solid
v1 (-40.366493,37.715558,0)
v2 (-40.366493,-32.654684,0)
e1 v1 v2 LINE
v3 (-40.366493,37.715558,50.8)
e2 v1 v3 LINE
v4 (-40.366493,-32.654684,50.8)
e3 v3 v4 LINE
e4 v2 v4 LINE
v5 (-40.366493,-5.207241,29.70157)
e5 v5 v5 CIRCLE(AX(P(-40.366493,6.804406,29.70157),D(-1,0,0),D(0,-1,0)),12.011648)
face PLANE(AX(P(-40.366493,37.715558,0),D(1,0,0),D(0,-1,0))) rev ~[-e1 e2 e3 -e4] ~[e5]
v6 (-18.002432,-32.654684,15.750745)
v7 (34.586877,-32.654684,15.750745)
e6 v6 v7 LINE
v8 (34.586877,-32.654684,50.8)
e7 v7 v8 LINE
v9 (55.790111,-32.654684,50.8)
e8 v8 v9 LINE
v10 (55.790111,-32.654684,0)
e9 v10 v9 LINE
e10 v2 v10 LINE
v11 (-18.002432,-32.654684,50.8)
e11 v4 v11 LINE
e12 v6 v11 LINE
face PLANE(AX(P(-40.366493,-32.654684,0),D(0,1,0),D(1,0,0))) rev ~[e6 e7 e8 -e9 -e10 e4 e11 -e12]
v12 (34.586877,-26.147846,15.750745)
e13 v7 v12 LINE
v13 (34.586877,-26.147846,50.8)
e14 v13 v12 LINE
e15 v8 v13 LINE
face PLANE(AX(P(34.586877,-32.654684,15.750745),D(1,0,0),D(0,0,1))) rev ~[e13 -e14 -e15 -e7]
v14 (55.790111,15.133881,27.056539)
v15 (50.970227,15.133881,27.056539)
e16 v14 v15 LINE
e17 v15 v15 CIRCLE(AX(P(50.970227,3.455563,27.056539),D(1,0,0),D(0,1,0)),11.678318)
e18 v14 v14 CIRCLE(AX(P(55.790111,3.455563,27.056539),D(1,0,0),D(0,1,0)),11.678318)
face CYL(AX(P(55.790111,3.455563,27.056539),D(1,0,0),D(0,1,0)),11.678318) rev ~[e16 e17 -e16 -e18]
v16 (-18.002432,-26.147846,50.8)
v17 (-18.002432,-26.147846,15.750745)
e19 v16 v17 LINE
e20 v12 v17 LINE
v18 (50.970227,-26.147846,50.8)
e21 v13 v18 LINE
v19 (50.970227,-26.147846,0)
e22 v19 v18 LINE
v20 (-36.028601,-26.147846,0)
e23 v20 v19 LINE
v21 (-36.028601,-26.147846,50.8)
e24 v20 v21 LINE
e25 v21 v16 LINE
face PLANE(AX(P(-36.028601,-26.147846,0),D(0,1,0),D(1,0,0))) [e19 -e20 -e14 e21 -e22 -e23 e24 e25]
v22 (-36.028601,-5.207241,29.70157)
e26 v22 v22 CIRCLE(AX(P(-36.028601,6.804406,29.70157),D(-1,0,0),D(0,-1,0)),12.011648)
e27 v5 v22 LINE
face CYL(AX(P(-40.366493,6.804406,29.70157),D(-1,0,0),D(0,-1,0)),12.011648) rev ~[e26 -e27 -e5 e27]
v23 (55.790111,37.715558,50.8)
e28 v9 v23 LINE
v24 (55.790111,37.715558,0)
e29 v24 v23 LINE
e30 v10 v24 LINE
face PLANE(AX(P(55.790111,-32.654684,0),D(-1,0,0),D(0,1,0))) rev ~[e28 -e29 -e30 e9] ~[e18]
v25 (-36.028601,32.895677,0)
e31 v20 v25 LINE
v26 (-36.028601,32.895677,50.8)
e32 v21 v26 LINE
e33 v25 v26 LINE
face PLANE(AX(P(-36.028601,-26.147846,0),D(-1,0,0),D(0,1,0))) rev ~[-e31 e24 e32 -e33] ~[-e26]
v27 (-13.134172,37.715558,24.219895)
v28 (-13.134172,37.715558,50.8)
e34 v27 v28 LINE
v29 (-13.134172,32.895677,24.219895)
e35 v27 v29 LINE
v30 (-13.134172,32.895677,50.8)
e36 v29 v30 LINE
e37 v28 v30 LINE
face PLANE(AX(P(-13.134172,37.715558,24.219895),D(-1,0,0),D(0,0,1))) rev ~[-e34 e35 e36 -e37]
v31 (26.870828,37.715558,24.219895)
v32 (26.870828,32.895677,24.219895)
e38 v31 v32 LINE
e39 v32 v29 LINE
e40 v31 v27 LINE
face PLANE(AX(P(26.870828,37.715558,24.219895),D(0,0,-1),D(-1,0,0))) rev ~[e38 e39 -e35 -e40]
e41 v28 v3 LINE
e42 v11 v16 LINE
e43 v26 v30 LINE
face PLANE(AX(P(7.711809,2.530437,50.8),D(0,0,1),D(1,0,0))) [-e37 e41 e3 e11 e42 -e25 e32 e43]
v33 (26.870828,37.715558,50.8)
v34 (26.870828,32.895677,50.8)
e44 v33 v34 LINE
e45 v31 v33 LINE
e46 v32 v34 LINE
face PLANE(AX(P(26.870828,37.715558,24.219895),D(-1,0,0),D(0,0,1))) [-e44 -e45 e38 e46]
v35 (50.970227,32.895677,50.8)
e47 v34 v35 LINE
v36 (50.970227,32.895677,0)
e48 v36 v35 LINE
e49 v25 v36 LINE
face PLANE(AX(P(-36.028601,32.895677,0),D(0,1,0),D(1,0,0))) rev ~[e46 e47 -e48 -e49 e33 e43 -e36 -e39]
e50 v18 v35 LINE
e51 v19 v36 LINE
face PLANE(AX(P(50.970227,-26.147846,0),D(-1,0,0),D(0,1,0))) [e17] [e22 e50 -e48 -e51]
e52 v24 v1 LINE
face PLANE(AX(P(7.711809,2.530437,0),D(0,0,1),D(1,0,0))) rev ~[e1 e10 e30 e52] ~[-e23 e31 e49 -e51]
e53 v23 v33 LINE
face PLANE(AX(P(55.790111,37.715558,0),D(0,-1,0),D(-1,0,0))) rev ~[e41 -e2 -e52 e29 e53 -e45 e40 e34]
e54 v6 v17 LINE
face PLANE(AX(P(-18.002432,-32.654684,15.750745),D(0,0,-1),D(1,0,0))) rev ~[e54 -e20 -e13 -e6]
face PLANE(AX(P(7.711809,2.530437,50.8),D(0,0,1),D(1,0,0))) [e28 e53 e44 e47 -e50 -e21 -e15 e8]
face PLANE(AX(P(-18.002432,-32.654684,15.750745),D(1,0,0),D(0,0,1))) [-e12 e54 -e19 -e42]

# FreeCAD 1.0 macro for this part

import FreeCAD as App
import Part
import Sketcher
Q = App.Units.Quantity


def add_polygon(sketch, points):
    """Adds a closed chain of lines whose ends are joined by coincident constraints."""
    first, n = sketch.GeometryCount, len(points)
    for a, b in zip(points, points[1:] + points[:1]):
        sketch.addGeometry(Part.LineSegment(App.Vector(*a, 0), App.Vector(*b, 0)), False)
    for i in range(n):
        sketch.addConstraint(Sketcher.Constraint("Coincident", first + i, 2, first + (i + 1) % n, 1))

doc = App.newDocument("Part")
params = doc.addObject("Spreadsheet::Sheet", "Params")
for row, (alias, value) in enumerate([
    ("pad1_length", "2 in"),
    ("pocket1_length", "1 in"),
    ("sketch3_width", "1.575 in"),
    ("pocket2_length", "1 in"),
    ("pocket3_length", "1 in"),
    ("pocket4_length", "1 in"),
], start=1):
    params.set(f"A{row}", alias)
    params.set(f"B{row}", "=" + value)
    params.setAlias(f"B{row}", alias)

body = doc.addObject("PartDesign::Body", "Body")

sketch1 = body.newObject("Sketcher::SketchObject", "Sketch")
sketch1.AttachmentSupport = (doc.getObject("XY_Plane"), [""])
sketch1.MapMode = "FlatFace"
add_polygon(sketch1, [(56, 38), (-40, 38), (-40, -33), (56, -33)])
add_polygon(sketch1, [(51, -26), (-36, -26), (-36, 33), (51, 33)])
sketch1.addConstraint(Sketcher.Constraint("Horizontal", 0))
sketch1.addConstraint(Sketcher.Constraint("Vertical", 1))
sketch1.addConstraint(Sketcher.Constraint("Horizontal", 2))
sketch1.addConstraint(Sketcher.Constraint("Vertical", 3))
sketch1.addConstraint(Sketcher.Constraint("Horizontal", 4))
sketch1.addConstraint(Sketcher.Constraint("Vertical", 5))
sketch1.addConstraint(Sketcher.Constraint("Horizontal", 6))
sketch1.addConstraint(Sketcher.Constraint("Vertical", 7))
sketch1.addConstraint(Sketcher.Constraint("DistanceX", 4, 2, -1, 1, 36.028601))
sketch1.addConstraint(Sketcher.Constraint("DistanceX", 0, 2, 0, 1, 96.156605))
sketch1.addConstraint(Sketcher.Constraint("DistanceX", 4, 2, 4, 1, 86.998828))
sketch1.addConstraint(Sketcher.Constraint("DistanceY", 1, 2, 1, 1, 70.370242))
sketch1.addConstraint(Sketcher.Constraint("DistanceY", 5, 1, 5, 2, 59.043523))
sketch1.addConstraint(Sketcher.Constraint("DistanceX", -1, 1, 2, 2, 55.790111))
sketch1.addConstraint(Sketcher.Constraint("DistanceY", 5, 2, 0, 2, 4.819881))
sketch1.addConstraint(Sketcher.Constraint("DistanceY", -1, 1, 0, 2, 37.715558))
pad1 = body.newObject("PartDesign::Pad", "Pad")
pad1.Profile = sketch1
pad1.setExpression("Length", "Params.pad1_length")

sketch2 = body.newObject("Sketcher::SketchObject", "Sketch001")
sketch2.AttachmentSupport = (doc.getObject("XZ_Plane"), [""])
sketch2.MapMode = "FlatFace"
sketch2.AttachmentOffset = App.Placement(App.Vector(0, 0, 32.654684), App.Rotation())
add_polygon(sketch2, [(-18, 51), (-18, 16), (35, 16), (35, 51)])
sketch2.addConstraint(Sketcher.Constraint("Vertical", 0))
sketch2.addConstraint(Sketcher.Constraint("Horizontal", 1))
sketch2.addConstraint(Sketcher.Constraint("Vertical", 2))
sketch2.addConstraint(Sketcher.Constraint("Horizontal", 3))
sketch2.addConstraint(Sketcher.Constraint("DistanceY", -1, 1, 2, 2, Q("2 in")))
sketch2.addConstraint(Sketcher.Constraint("DistanceX", 1, 1, 1, 2, 52.589308))
sketch2.addConstraint(Sketcher.Constraint("DistanceY", 0, 2, 0, 1, 35.049255))
sketch2.addConstraint(Sketcher.Constraint("DistanceX", 0, 2, -1, 1, 18.002432))
pocket1 = body.newObject("PartDesign::Pocket", "Pocket")
pocket1.Profile = sketch2
pocket1.setExpression("Length", "Params.pocket1_length")

sketch3 = body.newObject("Sketcher::SketchObject", "Sketch002")
sketch3.AttachmentSupport = (doc.getObject("XZ_Plane"), [""])
sketch3.MapMode = "FlatFace"
sketch3.AttachmentOffset = App.Placement(App.Vector(0, 0, -37.715558), App.Rotation())
add_polygon(sketch3, [(27, 51), (27, 24), (-13, 24), (-13, 51)])
sketch3.addConstraint(Sketcher.Constraint("Vertical", 0))
sketch3.addConstraint(Sketcher.Constraint("Horizontal", 1))
sketch3.addConstraint(Sketcher.Constraint("Vertical", 2))
sketch3.addConstraint(Sketcher.Constraint("Horizontal", 3))
sketch3.addConstraint(Sketcher.Constraint("DistanceY", -1, 1, 2, 2, Q("2 in")))
sketch3.addConstraint(Sketcher.Constraint("DistanceX", 1, 2, 1, 1, Q("1.575 in")))
sketch3.addConstraint(Sketcher.Constraint("DistanceY", 0, 2, 0, 1, 26.580105))
sketch3.addConstraint(Sketcher.Constraint("DistanceX", -1, 1, 0, 2, 26.870828))
sketch3.setExpression("Constraints[9]", "Params.sketch3_width")
pocket2 = body.newObject("PartDesign::Pocket", "Pocket001")
pocket2.Profile = sketch3
pocket2.setExpression("Length", "Params.pocket2_length")
pocket2.Reversed = True

sketch4 = body.newObject("Sketcher::SketchObject", "Sketch003")
sketch4.AttachmentSupport = (doc.getObject("YZ_Plane"), [""])
sketch4.MapMode = "FlatFace"
sketch4.AttachmentOffset = App.Placement(App.Vector(0, 0, -40.366493), App.Rotation())
sketch4.addGeometry(Part.Circle(App.Vector(7, 30, 0), App.Vector(0, 0, 1), 12), False)
sketch4.addConstraint(Sketcher.Constraint("Diameter", 0, 24.023295))
sketch4.addConstraint(Sketcher.Constraint("DistanceY", -1, 1, 0, 3, 29.70157))
sketch4.addConstraint(Sketcher.Constraint("DistanceX", -1, 1, 0, 3, 6.804406))
pocket3 = body.newObject("PartDesign::Pocket", "Pocket002")
pocket3.Profile = sketch4
pocket3.setExpression("Length", "Params.pocket3_length")
pocket3.Reversed = True

sketch5 = body.newObject("Sketcher::SketchObject", "Sketch004")
sketch5.AttachmentSupport = (doc.getObject("YZ_Plane"), [""])
sketch5.MapMode = "FlatFace"
sketch5.AttachmentOffset = App.Placement(App.Vector(0, 0, 55.790111), App.Rotation())
sketch5.addGeometry(Part.Circle(App.Vector(3, 27, 0), App.Vector(0, 0, 1), 12), False)
sketch5.addConstraint(Sketcher.Constraint("Diameter", 0, 23.356637))
sketch5.addConstraint(Sketcher.Constraint("DistanceY", -1, 1, 0, 3, 27.056539))
sketch5.addConstraint(Sketcher.Constraint("DistanceX", -1, 1, 0, 3, 3.455563))
pocket4 = body.newObject("PartDesign::Pocket", "Pocket003")
pocket4.Profile = sketch5
pocket4.setExpression("Length", "Params.pocket4_length")

doc.recompute()
